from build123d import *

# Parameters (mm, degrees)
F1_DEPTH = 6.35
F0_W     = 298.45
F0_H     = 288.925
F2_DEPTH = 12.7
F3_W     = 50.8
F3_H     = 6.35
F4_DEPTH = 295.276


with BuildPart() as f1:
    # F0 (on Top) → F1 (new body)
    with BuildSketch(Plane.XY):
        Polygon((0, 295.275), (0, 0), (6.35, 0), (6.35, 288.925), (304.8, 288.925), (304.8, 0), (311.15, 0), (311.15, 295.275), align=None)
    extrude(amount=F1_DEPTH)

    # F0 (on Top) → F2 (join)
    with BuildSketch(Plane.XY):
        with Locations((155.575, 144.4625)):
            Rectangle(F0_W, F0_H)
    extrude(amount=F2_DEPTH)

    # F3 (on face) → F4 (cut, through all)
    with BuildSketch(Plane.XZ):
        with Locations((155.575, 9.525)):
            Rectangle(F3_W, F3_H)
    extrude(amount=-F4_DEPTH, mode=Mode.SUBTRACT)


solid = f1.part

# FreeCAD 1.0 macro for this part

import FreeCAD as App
import Part
import Sketcher

V = App.Vector
Q = App.Units.Quantity


def add_polygon(sketch, points):
    """Adds a closed chain of lines whose ends are joined by coincident constraints."""
    first, n = sketch.GeometryCount, len(points)
    for a, b in zip(points, points[1:] + points[:1]):
        sketch.addGeometry(Part.LineSegment(App.Vector(*a, 0), App.Vector(*b, 0)), False)
    for i in range(n):
        sketch.addConstraint(Sketcher.Constraint("Coincident", first + i, 2, first + (i + 1) % n, 1))

doc = App.newDocument("Part")
body = doc.addObject("PartDesign::Body", "Body")

sketch1 = doc.addObject("Sketcher::SketchObject", "Sketch")
body.addObject(sketch1)
sketch1.AttachmentSupport = (doc.XY_Plane, [""])
sketch1.MapMode = "FlatFace"
add_polygon(sketch1, [(0, 295), (0, 0), (6, 0), (6, 289), (305, 289), (305, 0), (311, 0), (311, 295)])
sketch1.addConstraint(Sketcher.Constraint("Vertical", 0))
sketch1.addConstraint(Sketcher.Constraint("Horizontal", 1))
sketch1.addConstraint(Sketcher.Constraint("Vertical", 2))
sketch1.addConstraint(Sketcher.Constraint("Horizontal", 3))
sketch1.addConstraint(Sketcher.Constraint("Vertical", 4))
sketch1.addConstraint(Sketcher.Constraint("Horizontal", 5))
sketch1.addConstraint(Sketcher.Constraint("Vertical", 6))
sketch1.addConstraint(Sketcher.Constraint("Horizontal", 7))
sketch1.addConstraint(Sketcher.Constraint("Coincident", 0, 2, -1, 1))
sketch1.addConstraint(Sketcher.Constraint("PointOnObject", 4, 2, -1))
sketch1.addConstraint(Sketcher.Constraint("Equal", 1, 5))
sketch1.addConstraint(Sketcher.Constraint("DistanceX", -1, 1, 3, 2, Q("12 in")))
sketch1.addConstraint(Sketcher.Constraint("DistanceX", 1, 1, 1, 2, Q("0.25 in")))
sketch1.addConstraint(Sketcher.Constraint("DistanceY", 0, 2, 0, 1, Q("11.625 in")))
sketch1.addConstraint(Sketcher.Constraint("DistanceY", 2, 1, 2, 2, Q("11.375 in")))
pad1 = doc.addObject("PartDesign::Pad", "Pad")
body.addObject(pad1)
pad1.Profile = sketch1
pad1.Length = Q("0.25 in")

sketch2 = doc.addObject("Sketcher::SketchObject", "Sketch001")
body.addObject(sketch2)
sketch2.AttachmentSupport = (doc.XY_Plane, [""])
sketch2.MapMode = "FlatFace"
add_polygon(sketch2, [(6, 289), (6, 0), (305, 0), (305, 289)])
sketch2.addConstraint(Sketcher.Constraint("Vertical", 0))
sketch2.addConstraint(Sketcher.Constraint("Horizontal", 1))
sketch2.addConstraint(Sketcher.Constraint("Vertical", 2))
sketch2.addConstraint(Sketcher.Constraint("Horizontal", 3))
sketch2.addConstraint(Sketcher.Constraint("PointOnObject", 0, 2, -1))
sketch2.addConstraint(Sketcher.Constraint("DistanceX", -1, 1, 1, 2, Q("12 in")))
sketch2.addConstraint(Sketcher.Constraint("DistanceX", 1, 1, 1, 2, Q("11.75 in")))
sketch2.addConstraint(Sketcher.Constraint("DistanceY", 0, 2, 0, 1, Q("11.375 in")))
pad2 = doc.addObject("PartDesign::Pad", "Pad001")
body.addObject(pad2)
pad2.Profile = sketch2
pad2.Length = Q("0.5 in")

sketch3 = doc.addObject("Sketcher::SketchObject", "Sketch002")
body.addObject(sketch3)
sketch3.AttachmentSupport = (doc.XZ_Plane, [""])
sketch3.MapMode = "FlatFace"
add_polygon(sketch3, [(130, 13), (130, 6), (181, 6), (181, 13)])
sketch3.addConstraint(Sketcher.Constraint("Vertical", 0))
sketch3.addConstraint(Sketcher.Constraint("Horizontal", 1))
sketch3.addConstraint(Sketcher.Constraint("Vertical", 2))
sketch3.addConstraint(Sketcher.Constraint("Horizontal", 3))
sketch3.addConstraint(Sketcher.Constraint("DistanceX", 1, 1, 1, 2, Q("2 in")))
sketch3.addConstraint(Sketcher.Constraint("DistanceY", 0, 2, 0, 1, Q("0.25 in")))
sketch3.addConstraint(Sketcher.Constraint("DistanceY", -1, 1, 2, 2, Q("0.5 in")))
sketch3.addConstraint(Sketcher.Constraint("DistanceX", -1, 1, 0, 2, Q("5.125 in")))
pocket1 = doc.addObject("PartDesign::Pocket", "Pocket")
body.addObject(pocket1)
pocket1.Profile = sketch3
pocket1.Type = "ThroughAll"

doc.recompute()
